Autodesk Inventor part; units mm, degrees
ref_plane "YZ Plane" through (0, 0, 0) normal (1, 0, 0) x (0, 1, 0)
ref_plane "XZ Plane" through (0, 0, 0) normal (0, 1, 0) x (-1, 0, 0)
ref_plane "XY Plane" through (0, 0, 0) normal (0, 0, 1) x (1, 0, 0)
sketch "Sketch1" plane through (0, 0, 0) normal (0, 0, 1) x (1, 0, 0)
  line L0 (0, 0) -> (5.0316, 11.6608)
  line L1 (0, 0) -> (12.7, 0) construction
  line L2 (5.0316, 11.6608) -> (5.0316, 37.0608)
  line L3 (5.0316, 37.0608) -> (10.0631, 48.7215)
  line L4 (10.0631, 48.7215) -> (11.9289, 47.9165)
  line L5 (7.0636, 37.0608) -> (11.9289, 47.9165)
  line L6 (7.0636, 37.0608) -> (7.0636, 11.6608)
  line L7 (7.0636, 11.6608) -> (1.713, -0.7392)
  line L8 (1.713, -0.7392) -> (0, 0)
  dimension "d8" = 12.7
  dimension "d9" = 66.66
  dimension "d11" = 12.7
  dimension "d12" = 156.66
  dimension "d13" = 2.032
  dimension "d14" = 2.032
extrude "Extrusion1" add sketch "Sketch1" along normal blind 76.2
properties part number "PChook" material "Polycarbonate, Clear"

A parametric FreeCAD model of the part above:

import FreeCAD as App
import Part
import Sketcher

V = App.Vector
Q = App.Units.Quantity

doc = App.newDocument("Part")
body = doc.addObject("PartDesign::Body", "Body")

sketch1 = body.newObject("Sketcher::SketchObject", "Sketch")
sketch1.AttachmentSupport = (doc.getObject("XY_Plane"), [""])
sketch1.MapMode = "FlatFace"
sketch1.addGeometry([
    Part.LineSegment(V(5, 11.7, 0), V(0, 0, 0)),
    Part.LineSegment(V(0, 0, 0), V(1.7, -0.7, 0)),
    Part.LineSegment(V(1.7, -0.7, 0), V(7.1, 11.7, 0)),
    Part.LineSegment(V(7.1, 11.7, 0), V(7.1, 37.1, 0)),
    Part.LineSegment(V(7.1, 37.1, 0), V(11.9, 47.9, 0)),
    Part.LineSegment(V(11.9, 47.9, 0), V(10.1, 48.7, 0)),
    Part.LineSegment(V(10.1, 48.7, 0), V(5, 37.1, 0)),
    Part.LineSegment(V(5, 37.1, 0), V(5, 11.7, 0)),
], False)
sketch1.addConstraint([
    Sketcher.Constraint("Coincident", 0, 2, 1, 1),
    Sketcher.Constraint("Coincident", 1, 2, 2, 1),
    Sketcher.Constraint("Coincident", 2, 2, 3, 1),
    Sketcher.Constraint("Coincident", 3, 2, 4, 1),
    Sketcher.Constraint("Coincident", 4, 2, 5, 1),
    Sketcher.Constraint("Coincident", 5, 2, 6, 1),
    Sketcher.Constraint("Coincident", 6, 2, 7, 1),
    Sketcher.Constraint("Coincident", 7, 2, 0, 1),
    Sketcher.Constraint("Vertical", 3),
    Sketcher.Constraint("Vertical", 7),
    Sketcher.Constraint("Coincident", 0, 2, -1, 1),
    Sketcher.Constraint("Perpendicular", 0, 1),
    Sketcher.Constraint("Perpendicular", 1, 2),
    Sketcher.Constraint("Perpendicular", 2, 5),
    Sketcher.Constraint("Perpendicular", 5, 6),
    Sketcher.Constraint("Horizontal", 3, 2, 6, 2),
    Sketcher.Constraint("Horizontal", 2, 2, 7, 2),
    Sketcher.Constraint("Equal", 0, 6),
    Sketcher.Constraint("Distance", 0, Q("0.5 in")),
    Sketcher.Constraint("Distance", 5, Q("0.08 in")),
    Sketcher.Constraint("DistanceY", 3, 1, 3, 2, Q("1 in")),
    Sketcher.Constraint("Angle", 2, Q("66.6598 deg")),
    Sketcher.Constraint("DistanceX", 6, 2, 3, 2, Q("0.08 in")),
])
pad1 = body.newObject("PartDesign::Pad", "Pad")
pad1.Profile = sketch1
pad1.Length = Q("3 in")

doc.recompute()
